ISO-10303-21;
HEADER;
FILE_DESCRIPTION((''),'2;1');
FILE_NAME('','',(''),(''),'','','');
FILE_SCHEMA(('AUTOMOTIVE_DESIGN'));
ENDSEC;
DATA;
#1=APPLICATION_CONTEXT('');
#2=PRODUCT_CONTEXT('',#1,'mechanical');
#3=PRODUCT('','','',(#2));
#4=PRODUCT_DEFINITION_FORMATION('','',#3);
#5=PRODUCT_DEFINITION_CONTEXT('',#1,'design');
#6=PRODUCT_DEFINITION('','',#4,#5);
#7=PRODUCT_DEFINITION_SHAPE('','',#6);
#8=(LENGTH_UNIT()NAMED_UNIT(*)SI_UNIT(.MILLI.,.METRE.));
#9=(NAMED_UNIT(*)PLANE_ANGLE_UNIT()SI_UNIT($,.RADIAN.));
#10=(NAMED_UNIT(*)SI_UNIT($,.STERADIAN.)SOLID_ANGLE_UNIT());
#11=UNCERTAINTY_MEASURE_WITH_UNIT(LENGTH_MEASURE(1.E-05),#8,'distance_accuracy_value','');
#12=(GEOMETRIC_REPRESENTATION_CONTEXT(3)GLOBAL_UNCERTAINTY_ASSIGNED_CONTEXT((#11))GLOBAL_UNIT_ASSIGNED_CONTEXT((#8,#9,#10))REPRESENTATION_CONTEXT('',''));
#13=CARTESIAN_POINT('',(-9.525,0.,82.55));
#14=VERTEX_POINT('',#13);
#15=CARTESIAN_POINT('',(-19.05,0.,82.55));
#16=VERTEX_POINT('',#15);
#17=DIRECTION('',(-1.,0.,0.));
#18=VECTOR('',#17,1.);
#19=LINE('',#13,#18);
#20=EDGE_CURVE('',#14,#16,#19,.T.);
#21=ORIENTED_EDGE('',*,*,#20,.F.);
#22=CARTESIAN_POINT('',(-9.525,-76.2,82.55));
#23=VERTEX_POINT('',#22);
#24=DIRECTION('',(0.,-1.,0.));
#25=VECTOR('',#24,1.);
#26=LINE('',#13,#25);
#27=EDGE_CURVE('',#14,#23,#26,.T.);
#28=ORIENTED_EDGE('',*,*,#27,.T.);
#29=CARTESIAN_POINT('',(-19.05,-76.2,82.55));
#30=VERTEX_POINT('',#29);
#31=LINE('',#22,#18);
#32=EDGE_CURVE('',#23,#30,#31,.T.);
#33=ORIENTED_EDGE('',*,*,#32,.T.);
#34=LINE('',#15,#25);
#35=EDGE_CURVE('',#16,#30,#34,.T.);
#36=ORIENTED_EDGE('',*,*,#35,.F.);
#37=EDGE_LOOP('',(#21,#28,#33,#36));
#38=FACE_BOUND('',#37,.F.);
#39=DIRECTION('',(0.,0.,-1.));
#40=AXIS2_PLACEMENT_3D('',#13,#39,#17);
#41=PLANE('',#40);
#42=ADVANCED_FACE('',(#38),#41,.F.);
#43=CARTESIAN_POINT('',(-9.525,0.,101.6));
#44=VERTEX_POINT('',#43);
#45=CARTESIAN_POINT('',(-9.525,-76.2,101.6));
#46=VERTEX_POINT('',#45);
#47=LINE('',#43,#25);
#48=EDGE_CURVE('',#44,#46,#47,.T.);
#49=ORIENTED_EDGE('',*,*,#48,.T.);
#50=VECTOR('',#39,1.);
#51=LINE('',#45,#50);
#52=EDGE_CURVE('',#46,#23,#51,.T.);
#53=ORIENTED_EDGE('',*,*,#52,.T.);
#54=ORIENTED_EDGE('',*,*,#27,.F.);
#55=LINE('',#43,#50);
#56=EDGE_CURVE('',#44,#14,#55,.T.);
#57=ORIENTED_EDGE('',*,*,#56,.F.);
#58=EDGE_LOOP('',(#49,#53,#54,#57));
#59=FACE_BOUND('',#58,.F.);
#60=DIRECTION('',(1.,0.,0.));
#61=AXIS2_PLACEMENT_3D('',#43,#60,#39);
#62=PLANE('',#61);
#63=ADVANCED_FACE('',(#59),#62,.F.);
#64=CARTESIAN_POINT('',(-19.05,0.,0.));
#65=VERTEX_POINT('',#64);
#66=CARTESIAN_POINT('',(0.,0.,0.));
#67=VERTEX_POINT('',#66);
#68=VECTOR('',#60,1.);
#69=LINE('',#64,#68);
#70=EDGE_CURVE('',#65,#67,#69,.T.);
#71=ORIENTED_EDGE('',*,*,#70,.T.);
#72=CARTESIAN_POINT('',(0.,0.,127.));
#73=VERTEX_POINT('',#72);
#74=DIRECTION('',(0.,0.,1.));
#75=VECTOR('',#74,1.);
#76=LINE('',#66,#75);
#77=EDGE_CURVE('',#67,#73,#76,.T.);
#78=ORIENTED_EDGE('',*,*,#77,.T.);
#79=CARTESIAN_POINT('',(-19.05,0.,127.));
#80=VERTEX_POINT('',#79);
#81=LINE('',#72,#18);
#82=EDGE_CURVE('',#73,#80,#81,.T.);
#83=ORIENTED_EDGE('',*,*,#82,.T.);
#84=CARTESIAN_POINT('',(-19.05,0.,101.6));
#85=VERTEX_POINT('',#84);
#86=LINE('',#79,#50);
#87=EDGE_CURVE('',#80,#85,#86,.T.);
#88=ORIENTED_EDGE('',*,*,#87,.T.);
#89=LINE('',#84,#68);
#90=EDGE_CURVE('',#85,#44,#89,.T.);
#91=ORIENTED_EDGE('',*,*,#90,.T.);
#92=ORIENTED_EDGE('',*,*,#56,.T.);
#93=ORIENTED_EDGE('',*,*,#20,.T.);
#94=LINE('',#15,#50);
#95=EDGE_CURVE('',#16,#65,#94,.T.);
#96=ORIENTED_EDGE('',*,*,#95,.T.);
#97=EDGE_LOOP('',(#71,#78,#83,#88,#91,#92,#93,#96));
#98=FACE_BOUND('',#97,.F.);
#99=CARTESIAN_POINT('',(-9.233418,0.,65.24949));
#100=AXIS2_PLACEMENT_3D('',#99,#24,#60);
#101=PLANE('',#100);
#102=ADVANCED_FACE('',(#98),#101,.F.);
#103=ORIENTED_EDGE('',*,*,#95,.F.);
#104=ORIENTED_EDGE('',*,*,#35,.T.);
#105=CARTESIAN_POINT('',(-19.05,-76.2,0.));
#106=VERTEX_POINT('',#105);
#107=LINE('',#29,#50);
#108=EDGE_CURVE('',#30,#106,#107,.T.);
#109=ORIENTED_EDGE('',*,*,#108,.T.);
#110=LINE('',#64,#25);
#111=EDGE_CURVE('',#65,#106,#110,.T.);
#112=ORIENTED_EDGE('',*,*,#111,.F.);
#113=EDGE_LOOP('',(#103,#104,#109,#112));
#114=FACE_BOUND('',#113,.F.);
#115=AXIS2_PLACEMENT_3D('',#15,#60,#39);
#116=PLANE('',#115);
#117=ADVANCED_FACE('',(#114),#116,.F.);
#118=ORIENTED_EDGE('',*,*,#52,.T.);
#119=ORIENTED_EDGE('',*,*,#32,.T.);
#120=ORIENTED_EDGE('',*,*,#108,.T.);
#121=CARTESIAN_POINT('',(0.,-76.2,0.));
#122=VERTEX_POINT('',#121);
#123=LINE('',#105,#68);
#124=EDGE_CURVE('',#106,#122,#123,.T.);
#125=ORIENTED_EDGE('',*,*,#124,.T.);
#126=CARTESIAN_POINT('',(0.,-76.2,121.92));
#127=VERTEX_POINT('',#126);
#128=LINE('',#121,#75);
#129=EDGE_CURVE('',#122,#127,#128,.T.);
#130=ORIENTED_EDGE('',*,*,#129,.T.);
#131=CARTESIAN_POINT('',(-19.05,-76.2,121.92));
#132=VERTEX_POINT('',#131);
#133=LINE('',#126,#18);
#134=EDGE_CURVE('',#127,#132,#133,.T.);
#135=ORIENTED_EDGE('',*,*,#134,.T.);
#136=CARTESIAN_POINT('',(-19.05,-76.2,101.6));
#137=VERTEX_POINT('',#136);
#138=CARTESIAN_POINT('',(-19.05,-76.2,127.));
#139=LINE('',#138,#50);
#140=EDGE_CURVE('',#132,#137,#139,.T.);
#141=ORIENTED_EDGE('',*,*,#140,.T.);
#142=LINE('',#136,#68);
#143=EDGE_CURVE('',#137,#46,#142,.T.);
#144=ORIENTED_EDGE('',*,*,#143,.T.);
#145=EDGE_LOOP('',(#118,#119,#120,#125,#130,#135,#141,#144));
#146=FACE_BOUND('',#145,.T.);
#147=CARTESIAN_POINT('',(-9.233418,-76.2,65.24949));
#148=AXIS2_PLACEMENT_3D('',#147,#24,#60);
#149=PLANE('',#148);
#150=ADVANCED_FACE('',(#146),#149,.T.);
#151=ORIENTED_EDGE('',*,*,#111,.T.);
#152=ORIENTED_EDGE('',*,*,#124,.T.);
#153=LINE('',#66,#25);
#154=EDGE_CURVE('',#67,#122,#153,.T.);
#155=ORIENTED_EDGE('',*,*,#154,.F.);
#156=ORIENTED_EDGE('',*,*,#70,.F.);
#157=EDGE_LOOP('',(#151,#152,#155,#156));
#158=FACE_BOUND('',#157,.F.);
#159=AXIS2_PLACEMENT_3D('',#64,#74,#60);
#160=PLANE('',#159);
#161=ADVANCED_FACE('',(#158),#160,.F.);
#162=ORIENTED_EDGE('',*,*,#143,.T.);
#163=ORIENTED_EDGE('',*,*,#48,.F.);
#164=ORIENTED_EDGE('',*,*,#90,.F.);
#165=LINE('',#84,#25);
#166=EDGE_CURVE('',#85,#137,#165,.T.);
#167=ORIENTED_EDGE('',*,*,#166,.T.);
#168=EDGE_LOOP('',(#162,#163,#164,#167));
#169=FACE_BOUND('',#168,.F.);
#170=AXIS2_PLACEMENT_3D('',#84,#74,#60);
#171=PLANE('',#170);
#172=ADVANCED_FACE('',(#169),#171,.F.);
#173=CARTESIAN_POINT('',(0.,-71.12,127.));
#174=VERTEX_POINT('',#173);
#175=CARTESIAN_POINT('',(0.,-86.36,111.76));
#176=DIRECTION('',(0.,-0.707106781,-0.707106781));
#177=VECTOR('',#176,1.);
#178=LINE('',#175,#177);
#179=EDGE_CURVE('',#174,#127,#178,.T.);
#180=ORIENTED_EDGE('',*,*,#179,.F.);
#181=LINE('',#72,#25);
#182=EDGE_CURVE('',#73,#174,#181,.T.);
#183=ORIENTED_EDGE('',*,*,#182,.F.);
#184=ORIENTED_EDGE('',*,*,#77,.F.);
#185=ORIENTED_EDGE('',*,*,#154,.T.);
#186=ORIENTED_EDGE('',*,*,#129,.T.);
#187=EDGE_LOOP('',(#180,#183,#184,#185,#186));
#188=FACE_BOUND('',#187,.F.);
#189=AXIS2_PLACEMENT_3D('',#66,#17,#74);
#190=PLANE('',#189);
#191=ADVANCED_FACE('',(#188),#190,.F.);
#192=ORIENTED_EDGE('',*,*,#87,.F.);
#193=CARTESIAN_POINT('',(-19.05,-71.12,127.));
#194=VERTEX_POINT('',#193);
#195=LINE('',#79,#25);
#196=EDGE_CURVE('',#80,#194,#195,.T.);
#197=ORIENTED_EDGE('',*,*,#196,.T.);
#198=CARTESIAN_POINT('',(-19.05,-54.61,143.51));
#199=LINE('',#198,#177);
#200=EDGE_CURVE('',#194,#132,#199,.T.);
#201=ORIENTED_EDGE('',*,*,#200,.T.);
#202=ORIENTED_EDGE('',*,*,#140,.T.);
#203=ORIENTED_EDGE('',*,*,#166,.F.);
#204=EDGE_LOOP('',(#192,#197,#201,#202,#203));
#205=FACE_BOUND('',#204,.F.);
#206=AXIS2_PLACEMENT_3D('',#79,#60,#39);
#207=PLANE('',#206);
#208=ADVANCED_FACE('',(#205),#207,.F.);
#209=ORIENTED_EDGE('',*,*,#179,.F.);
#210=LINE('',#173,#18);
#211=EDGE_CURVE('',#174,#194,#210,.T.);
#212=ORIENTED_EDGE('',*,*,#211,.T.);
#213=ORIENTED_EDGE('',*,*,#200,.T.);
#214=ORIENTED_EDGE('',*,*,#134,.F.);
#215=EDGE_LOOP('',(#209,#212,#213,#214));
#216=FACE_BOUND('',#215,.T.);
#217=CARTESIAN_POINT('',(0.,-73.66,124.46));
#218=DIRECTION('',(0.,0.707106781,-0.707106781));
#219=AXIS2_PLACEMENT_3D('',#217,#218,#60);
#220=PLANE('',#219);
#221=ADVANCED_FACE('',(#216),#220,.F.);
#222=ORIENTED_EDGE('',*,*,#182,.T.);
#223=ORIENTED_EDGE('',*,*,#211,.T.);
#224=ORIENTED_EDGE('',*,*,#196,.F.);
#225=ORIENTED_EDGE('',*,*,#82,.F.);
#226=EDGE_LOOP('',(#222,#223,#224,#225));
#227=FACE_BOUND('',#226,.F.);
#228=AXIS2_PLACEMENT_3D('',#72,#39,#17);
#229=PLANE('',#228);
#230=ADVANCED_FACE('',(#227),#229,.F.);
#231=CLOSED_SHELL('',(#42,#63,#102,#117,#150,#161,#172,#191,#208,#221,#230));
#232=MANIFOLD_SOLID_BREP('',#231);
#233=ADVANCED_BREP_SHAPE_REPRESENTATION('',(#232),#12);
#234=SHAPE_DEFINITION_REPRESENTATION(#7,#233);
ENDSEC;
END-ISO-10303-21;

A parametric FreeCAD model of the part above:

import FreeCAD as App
import Part
import Sketcher

V = App.Vector
Q = App.Units.Quantity


def edges_at(feature, points):
    """Names of the edges that pass closest to the given points."""
    edges = feature.Shape.Edges
    near = lambda p: min(range(len(edges)), key=lambda i: edges[i].distToShape(Part.Vertex(*p))[0])
    return sorted({f"Edge{near(p) + 1}" for p in points})


def add_polygon(sketch, points):
    """Adds a closed chain of lines whose ends are joined by coincident constraints."""
    first, n = sketch.GeometryCount, len(points)
    for a, b in zip(points, points[1:] + points[:1]):
        sketch.addGeometry(Part.LineSegment(App.Vector(*a, 0), App.Vector(*b, 0)), False)
    for i in range(n):
        sketch.addConstraint(Sketcher.Constraint("Coincident", first + i, 2, first + (i + 1) % n, 1))

doc = App.newDocument("Part")
body = doc.addObject("PartDesign::Body", "Body")

# Sketch on XZ plane
sketch1 = body.newObject("Sketcher::SketchObject", "Sketch")
sketch1.AttachmentSupport = (doc.getObject("XZ_Plane"), [""])
sketch1.MapMode = "FlatFace"
add_polygon(sketch1, [(-19, 0), (0, 0), (0, 127), (-19, 127), (-19, 102), (-10, 102), (-10, 83), (-19, 83)])  # lines 0-7
sketch1.addConstraint(Sketcher.Constraint("Horizontal", 0))
sketch1.addConstraint(Sketcher.Constraint("Vertical", 1))
sketch1.addConstraint(Sketcher.Constraint("Horizontal", 2))
sketch1.addConstraint(Sketcher.Constraint("Vertical", 3))
sketch1.addConstraint(Sketcher.Constraint("Horizontal", 4))
sketch1.addConstraint(Sketcher.Constraint("Vertical", 5))
sketch1.addConstraint(Sketcher.Constraint("Horizontal", 6))
sketch1.addConstraint(Sketcher.Constraint("Vertical", 7))
sketch1.addConstraint(Sketcher.Constraint("Coincident", 0, 2, -1, 1))
sketch1.addConstraint(Sketcher.Constraint("Vertical", 3, 2, 6, 2))
sketch1.addConstraint(Sketcher.Constraint("Equal", 2, 5))
sketch1.addConstraint(Sketcher.Constraint("DistanceY", 1, 1, 1, 2, Q("5 in")))
sketch1.addConstraint(Sketcher.Constraint("DistanceY", 3, 2, 3, 1, Q("1 in")))
sketch1.addConstraint(Sketcher.Constraint("DistanceX", 0, 1, 0, 2, Q("0.75 in")))
sketch1.addConstraint(Sketcher.Constraint("DistanceX", 4, 1, 4, 2, Q("0.375 in")))
pad1 = body.newObject("PartDesign::Pad", "Pad")
pad1.Profile = sketch1
pad1.Length = Q("3 in")
doc.recompute()

chamfer = body.newObject("PartDesign::Chamfer", "Chamfer")
chamfer.Base = (pad1, edges_at(pad1, [(-9.525, -76.2, 127)]))
chamfer.Size = Q("0.2 in")

doc.recompute()
